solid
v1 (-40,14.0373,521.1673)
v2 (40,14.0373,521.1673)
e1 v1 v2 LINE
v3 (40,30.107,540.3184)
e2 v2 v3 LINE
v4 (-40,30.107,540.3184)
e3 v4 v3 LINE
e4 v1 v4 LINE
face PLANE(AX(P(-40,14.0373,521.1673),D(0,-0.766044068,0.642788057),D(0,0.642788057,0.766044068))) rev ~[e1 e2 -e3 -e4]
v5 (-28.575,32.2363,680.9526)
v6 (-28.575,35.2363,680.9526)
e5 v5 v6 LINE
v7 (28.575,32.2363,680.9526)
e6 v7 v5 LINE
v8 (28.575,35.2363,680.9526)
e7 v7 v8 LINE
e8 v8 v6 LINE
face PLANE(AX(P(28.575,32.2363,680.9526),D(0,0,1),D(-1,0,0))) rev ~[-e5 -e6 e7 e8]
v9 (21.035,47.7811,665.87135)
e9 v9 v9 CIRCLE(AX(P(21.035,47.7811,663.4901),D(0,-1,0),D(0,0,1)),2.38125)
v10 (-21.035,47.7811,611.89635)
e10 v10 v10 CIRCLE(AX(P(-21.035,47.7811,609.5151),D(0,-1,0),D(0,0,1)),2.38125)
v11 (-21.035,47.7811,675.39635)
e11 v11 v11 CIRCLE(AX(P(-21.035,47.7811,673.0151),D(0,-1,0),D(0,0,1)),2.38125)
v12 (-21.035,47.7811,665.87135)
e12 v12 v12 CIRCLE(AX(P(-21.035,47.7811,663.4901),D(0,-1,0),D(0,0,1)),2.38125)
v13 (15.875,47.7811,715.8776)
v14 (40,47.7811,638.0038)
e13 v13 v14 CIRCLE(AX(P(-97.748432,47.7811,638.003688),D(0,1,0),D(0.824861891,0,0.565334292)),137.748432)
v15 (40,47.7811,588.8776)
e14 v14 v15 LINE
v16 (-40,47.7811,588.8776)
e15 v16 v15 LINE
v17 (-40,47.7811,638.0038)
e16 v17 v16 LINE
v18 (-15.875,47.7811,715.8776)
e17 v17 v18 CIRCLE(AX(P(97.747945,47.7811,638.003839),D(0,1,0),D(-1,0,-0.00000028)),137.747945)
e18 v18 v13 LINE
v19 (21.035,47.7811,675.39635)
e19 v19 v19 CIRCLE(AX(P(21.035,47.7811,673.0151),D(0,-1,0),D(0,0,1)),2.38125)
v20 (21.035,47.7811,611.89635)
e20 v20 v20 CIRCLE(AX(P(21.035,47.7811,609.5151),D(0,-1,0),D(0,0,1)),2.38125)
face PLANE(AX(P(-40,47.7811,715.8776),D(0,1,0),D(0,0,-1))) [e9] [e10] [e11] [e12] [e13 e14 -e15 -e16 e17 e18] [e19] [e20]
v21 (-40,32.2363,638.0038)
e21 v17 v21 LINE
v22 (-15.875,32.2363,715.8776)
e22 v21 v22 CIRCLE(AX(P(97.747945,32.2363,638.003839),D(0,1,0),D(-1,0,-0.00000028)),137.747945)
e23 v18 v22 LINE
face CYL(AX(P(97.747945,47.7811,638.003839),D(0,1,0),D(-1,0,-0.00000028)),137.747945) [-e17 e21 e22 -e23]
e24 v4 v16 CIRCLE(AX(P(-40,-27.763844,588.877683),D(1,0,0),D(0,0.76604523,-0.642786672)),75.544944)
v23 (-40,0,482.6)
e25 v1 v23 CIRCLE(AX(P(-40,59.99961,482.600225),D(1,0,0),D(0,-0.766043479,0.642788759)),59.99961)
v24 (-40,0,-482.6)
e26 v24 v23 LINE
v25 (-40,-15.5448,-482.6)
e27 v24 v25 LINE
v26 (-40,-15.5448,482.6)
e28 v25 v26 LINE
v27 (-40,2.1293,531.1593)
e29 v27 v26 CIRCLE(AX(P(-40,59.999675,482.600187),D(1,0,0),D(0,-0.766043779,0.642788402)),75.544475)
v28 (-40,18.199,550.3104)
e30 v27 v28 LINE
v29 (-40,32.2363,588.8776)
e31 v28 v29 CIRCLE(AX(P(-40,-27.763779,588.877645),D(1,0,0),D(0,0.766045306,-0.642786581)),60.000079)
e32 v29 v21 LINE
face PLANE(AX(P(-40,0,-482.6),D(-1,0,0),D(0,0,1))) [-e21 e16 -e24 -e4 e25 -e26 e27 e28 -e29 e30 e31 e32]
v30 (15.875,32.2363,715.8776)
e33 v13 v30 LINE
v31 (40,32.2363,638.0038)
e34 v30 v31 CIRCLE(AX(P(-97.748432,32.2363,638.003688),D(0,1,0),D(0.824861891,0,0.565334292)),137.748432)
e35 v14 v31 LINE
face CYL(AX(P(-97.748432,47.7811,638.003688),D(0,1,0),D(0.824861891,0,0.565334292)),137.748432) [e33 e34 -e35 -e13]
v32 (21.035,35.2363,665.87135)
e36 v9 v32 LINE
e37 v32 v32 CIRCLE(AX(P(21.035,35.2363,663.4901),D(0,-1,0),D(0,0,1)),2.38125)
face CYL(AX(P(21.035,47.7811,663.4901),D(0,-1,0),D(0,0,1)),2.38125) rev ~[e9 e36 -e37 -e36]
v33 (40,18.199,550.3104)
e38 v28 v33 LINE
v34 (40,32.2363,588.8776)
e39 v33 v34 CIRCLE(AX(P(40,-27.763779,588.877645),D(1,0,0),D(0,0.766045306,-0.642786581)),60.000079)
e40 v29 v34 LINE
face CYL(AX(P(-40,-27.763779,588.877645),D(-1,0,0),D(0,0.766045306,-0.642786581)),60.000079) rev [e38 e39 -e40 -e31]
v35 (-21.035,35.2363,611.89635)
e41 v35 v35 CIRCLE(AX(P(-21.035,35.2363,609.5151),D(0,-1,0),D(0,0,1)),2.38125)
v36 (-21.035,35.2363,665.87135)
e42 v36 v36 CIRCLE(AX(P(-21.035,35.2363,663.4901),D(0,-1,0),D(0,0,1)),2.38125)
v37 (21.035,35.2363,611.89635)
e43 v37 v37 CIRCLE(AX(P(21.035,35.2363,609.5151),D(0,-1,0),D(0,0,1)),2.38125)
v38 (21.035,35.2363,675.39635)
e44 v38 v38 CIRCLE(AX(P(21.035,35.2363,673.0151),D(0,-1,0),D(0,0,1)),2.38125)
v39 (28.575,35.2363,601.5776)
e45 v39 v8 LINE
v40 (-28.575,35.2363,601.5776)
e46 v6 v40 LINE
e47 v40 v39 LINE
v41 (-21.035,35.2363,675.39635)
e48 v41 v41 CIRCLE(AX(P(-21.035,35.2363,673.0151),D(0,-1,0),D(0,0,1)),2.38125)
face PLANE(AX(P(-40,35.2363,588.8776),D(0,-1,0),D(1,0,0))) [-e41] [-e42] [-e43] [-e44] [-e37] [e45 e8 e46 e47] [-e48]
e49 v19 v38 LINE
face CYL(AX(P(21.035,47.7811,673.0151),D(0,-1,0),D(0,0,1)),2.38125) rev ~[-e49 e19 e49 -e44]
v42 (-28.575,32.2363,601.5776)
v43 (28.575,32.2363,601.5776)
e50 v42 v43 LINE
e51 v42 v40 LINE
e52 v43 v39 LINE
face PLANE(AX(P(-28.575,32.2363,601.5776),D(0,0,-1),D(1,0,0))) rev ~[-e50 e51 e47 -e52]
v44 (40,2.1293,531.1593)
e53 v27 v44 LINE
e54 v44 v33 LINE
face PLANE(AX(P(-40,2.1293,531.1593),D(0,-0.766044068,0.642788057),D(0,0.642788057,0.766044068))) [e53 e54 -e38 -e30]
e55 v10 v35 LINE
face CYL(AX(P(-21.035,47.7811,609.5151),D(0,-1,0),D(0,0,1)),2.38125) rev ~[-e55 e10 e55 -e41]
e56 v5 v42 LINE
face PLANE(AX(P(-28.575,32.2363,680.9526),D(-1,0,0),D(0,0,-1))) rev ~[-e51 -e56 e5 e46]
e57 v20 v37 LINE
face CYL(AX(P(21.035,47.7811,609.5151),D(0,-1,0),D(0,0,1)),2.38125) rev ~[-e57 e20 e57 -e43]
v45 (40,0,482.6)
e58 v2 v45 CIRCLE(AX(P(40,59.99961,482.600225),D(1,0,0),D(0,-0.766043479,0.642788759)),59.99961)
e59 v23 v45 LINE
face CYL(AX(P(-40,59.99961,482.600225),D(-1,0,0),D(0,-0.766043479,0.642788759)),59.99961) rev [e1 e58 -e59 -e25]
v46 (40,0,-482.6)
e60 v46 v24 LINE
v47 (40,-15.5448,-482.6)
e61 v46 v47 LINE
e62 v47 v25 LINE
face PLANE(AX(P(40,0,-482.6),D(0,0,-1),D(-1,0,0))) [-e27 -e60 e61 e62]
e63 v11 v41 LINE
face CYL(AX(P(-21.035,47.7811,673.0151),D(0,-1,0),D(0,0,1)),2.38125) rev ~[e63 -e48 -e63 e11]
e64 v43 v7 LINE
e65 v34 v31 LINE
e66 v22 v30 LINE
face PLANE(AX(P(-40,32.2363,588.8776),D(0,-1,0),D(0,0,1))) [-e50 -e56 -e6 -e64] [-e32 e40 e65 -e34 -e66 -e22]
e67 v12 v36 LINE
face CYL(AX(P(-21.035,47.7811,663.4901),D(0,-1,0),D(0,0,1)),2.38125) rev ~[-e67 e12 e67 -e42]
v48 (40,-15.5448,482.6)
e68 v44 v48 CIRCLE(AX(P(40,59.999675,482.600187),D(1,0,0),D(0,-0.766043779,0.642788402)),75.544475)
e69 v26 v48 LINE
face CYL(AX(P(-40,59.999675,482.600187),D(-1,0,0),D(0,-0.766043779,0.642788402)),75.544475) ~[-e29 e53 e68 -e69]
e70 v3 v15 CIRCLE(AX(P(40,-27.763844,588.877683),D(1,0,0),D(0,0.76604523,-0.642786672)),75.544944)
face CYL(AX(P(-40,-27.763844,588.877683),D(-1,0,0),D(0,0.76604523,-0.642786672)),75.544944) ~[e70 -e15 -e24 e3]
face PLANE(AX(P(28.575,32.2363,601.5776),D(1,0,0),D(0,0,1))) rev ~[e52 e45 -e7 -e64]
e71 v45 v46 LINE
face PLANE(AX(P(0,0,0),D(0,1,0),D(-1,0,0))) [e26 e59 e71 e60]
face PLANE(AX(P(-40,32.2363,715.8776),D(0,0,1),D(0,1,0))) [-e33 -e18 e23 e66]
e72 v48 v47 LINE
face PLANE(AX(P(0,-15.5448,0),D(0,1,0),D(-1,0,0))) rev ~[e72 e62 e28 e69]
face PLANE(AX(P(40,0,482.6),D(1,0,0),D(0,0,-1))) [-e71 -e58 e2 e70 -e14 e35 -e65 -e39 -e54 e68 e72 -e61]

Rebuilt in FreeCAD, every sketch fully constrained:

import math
import FreeCAD as App
import Part
import Sketcher

V = App.Vector
Q = App.Units.Quantity

doc = App.newDocument("Part")
body = doc.addObject("PartDesign::Body", "Body")

sketch1 = body.newObject("Sketcher::SketchObject", "Sketch")
sketch1.AttachmentSupport = (doc.getObject("XZ_Plane"), [""])
sketch1.MapMode = "FlatFace"
sketch1.addGeometry(Part.LineSegment(V(-40, 482.6, 0), V(40, 482.6, 0)), False)
sketch1.addGeometry(Part.LineSegment(V(40, 482.6, 0), V(40, -482.6, 0)), False)
sketch1.addGeometry(Part.LineSegment(V(40, -482.6, 0), V(-40, -482.6, 0)), False)
sketch1.addGeometry(Part.LineSegment(V(-40, -482.6, 0), V(-40, 482.6, 0)), False)
sketch1.addConstraint(Sketcher.Constraint("Coincident", 0, 2, 1, 1))
sketch1.addConstraint(Sketcher.Constraint("Coincident", 1, 2, 2, 1))
sketch1.addConstraint(Sketcher.Constraint("Coincident", 2, 2, 3, 1))
sketch1.addConstraint(Sketcher.Constraint("Coincident", 3, 2, 0, 1))
sketch1.addConstraint(Sketcher.Constraint("Horizontal", 0))
sketch1.addConstraint(Sketcher.Constraint("Vertical", 1))
sketch1.addConstraint(Sketcher.Constraint("Horizontal", 2))
sketch1.addConstraint(Sketcher.Constraint("Vertical", 3))
sketch1.addConstraint(Sketcher.Constraint("Symmetric", 0, 2, 2, 2, -1, 1))
sketch1.addConstraint(Sketcher.Constraint("DistanceY", 1, 2, 1, 1, Q("38 in")))
sketch1.addConstraint(Sketcher.Constraint("DistanceX", 0, 1, 0, 2, Q("3.1496 in")))
pad1 = body.newObject("PartDesign::Pad", "Pad")
pad1.Profile = sketch1
pad1.Length = Q("0.612 in")

sketch2 = body.newObject("Sketcher::SketchObject", "Sketch001")
sketch2.AttachmentSupport = (doc.getObject("YZ_Plane"), [""])
sketch2.MapMode = "FlatFace"
sketch2.AttachmentOffset = App.Placement(V(0, 0, -1.5748031 * 25.4), App.Rotation())
sketch2.addGeometry(Part.LineSegment(V(-15.5448, 482.6, 0), V(0, 482.6, 0)), False)
sketch2.addGeometry(Part.ArcOfCircle(Part.Circle(V(60, 482.6, 0), V(0, 0, 1), 60.000054), math.radians(139.999989), math.radians(180)), False)
sketch2.addGeometry(Part.LineSegment(V(14.0373, 521.1673, 0), V(30.107, 540.3184, 0)), False)
sketch2.addGeometry(Part.ArcOfCircle(Part.Circle(V(-27.7637, 588.8776, 0), V(0, 0, 1), 75.54478), math.radians(-39.999952), math.radians(0)), False)
sketch2.addGeometry(Part.LineSegment(V(47.7811, 588.8776, 0), V(47.7811, 715.8776, 0)), False)
sketch2.addGeometry(Part.LineSegment(V(47.7811, 715.8776, 0), V(32.2363, 715.8776, 0)), False)
sketch2.addGeometry(Part.LineSegment(V(32.2363, 715.8776, 0), V(32.2363, 588.8776, 0)), False)
sketch2.addGeometry(Part.ArcOfCircle(Part.Circle(V(-27.7637, 588.8776, 0), V(0, 0, 1), 59.999989), math.radians(-39.999938), math.radians(0)), False)
sketch2.addGeometry(Part.LineSegment(V(18.199, 550.3104, 0), V(2.1293, 531.1593, 0)), False)
sketch2.addGeometry(Part.ArcOfCircle(Part.Circle(V(60, 482.6, 0), V(0, 0, 1), 75.544845), math.radians(139.99999), math.radians(180)), False)
sketch2.addConstraint(Sketcher.Constraint("Coincident", 0, 2, 1, 2))
sketch2.addConstraint(Sketcher.Constraint("Tangent", 1, 1, 2, 1))
sketch2.addConstraint(Sketcher.Constraint("Tangent", 2, 2, 3, 1))
sketch2.addConstraint(Sketcher.Constraint("Tangent", 3, 2, 4, 1))
sketch2.addConstraint(Sketcher.Constraint("Coincident", 4, 2, 5, 1))
sketch2.addConstraint(Sketcher.Constraint("Coincident", 5, 2, 6, 1))
sketch2.addConstraint(Sketcher.Constraint("Tangent", 6, 2, 7, 2))
sketch2.addConstraint(Sketcher.Constraint("Tangent", 7, 1, 8, 1))
sketch2.addConstraint(Sketcher.Constraint("Tangent", 8, 2, 9, 1))
sketch2.addConstraint(Sketcher.Constraint("Coincident", 9, 2, 0, 1))
sketch2.addConstraint(Sketcher.Constraint("Horizontal", 0))
sketch2.addConstraint(Sketcher.Constraint("Vertical", 4))
sketch2.addConstraint(Sketcher.Constraint("Horizontal", 5))
sketch2.addConstraint(Sketcher.Constraint("Vertical", 6))
sketch2.addConstraint(Sketcher.Constraint("Coincident", 7, 3, 3, 3))
sketch2.addConstraint(Sketcher.Constraint("Coincident", 9, 3, 1, 3))
sketch2.addConstraint(Sketcher.Constraint("Equal", 1, 7))
sketch2.addConstraint(Sketcher.Constraint("Equal", 3, 9))
sketch2.addConstraint(Sketcher.Constraint("PointOnObject", 0, 2, -2))
sketch2.addConstraint(Sketcher.Constraint("Horizontal", 9, 3, 0, 2))
sketch2.addConstraint(Sketcher.Constraint("DistanceY", 4, 1, 4, 2, Q("5 in")))
sketch2.addConstraint(Sketcher.Constraint("Radius", 1, Q("2.3622 in")))
sketch2.addConstraint(Sketcher.Constraint("DistanceY", -1, 1, 1, 3, Q("19 in")))
sketch2.addConstraint(Sketcher.Constraint("Angle", 2, Q("50 deg")))
sketch2.addConstraint(Sketcher.Constraint("Radius", 3, Q("2.9742 in")))
sketch2.addConstraint(Sketcher.Constraint("Distance", 2, Q("25 mm")))
pad2 = body.newObject("PartDesign::Pad", "Pad001")
pad2.Profile = sketch2
pad2.Length = Q("3.1496063 in")

sketch3 = body.newObject("Sketcher::SketchObject", "Sketch002")
sketch3.AttachmentSupport = (doc.getObject("XZ_Plane"), [""])
sketch3.MapMode = "FlatFace"
sketch3.AttachmentOffset = App.Placement(V(0, 0, -47.7811), App.Rotation())
sketch3.addGeometry(Part.ArcOfCircle(Part.Circle(V(-97.7482, 638.0038, 0), V(0, 0, 1), 137.748177), math.radians(0), math.radians(34.425524)), False)
sketch3.addGeometry(Part.LineSegment(V(15.875, 715.8776, 0), V(40, 715.8776, 0)), False)
sketch3.addGeometry(Part.LineSegment(V(40, 715.8776, 0), V(40, 638.0038, 0)), False)
sketch3.addGeometry(Part.LineSegment(V(-40, 638.0038, 0), V(-40, 715.8776, 0)), False)
sketch3.addGeometry(Part.LineSegment(V(-40, 715.8776, 0), V(-15.875, 715.8776, 0)), False)
sketch3.addGeometry(Part.ArcOfCircle(Part.Circle(V(97.7482, 638.0038, 0), V(0, 0, 1), 137.7482), math.radians(145.574476), math.radians(180)), False)
sketch3.addConstraint(Sketcher.Constraint("Coincident", 0, 2, 1, 1))
sketch3.addConstraint(Sketcher.Constraint("Coincident", 1, 2, 2, 1))
sketch3.addConstraint(Sketcher.Constraint("Tangent", 2, 2, 0, 1))
sketch3.addConstraint(Sketcher.Constraint("Coincident", 3, 2, 4, 1))
sketch3.addConstraint(Sketcher.Constraint("Coincident", 4, 2, 5, 1))
sketch3.addConstraint(Sketcher.Constraint("Tangent", 5, 2, 3, 1))
sketch3.addConstraint(Sketcher.Constraint("Horizontal", 1))
sketch3.addConstraint(Sketcher.Constraint("Vertical", 2))
sketch3.addConstraint(Sketcher.Constraint("Vertical", 3))
sketch3.addConstraint(Sketcher.Constraint("Horizontal", 4))
sketch3.addConstraint(Sketcher.Constraint("Equal", 0, 5))
sketch3.addConstraint(Sketcher.Constraint("Symmetric", 0, 3, 5, 3, -2))
sketch3.addConstraint(Sketcher.Constraint("Horizontal", 1, 2, 3, 2))
sketch3.addConstraint(Sketcher.Constraint("DistanceX", 4, 2, 0, 2, Q("1.25 in")))
sketch3.addConstraint(Sketcher.Constraint("Radius", 0, Q("137.7482 mm")))
sketch3.addConstraint(Sketcher.Constraint("DistanceX", 1, 1, 1, 2, Q("0.9498 in")))
sketch3.addConstraint(Sketcher.Constraint("DistanceY", -1, 1, 0, 3, Q("638.0038 mm")))
pocket1 = body.newObject("PartDesign::Pocket", "Pocket")
pocket1.Profile = sketch3
pocket1.Type = "ThroughAll"
pocket1.Reversed = True

sketch4 = body.newObject("Sketcher::SketchObject", "Sketch003")
sketch4.AttachmentSupport = (doc.getObject("XZ_Plane"), [""])
sketch4.MapMode = "FlatFace"
sketch4.AttachmentOffset = App.Placement(V(0, 0, -47.7811), App.Rotation())
sketch4.addGeometry(Part.Circle(V(-21.035, 673.0151, 0), V(0, 0, 1), 2.38125), False)
sketch4.addGeometry(Part.Circle(V(-21.035, 663.4901, 0), V(0, 0, 1), 2.38125), False)
sketch4.addGeometry(Part.Circle(V(21.035, 673.0151, 0), V(0, 0, 1), 2.38125), False)
sketch4.addGeometry(Part.Circle(V(21.035, 663.4901, 0), V(0, 0, 1), 2.38125), False)
sketch4.addGeometry(Part.Circle(V(21.035, 609.5151, 0), V(0, 0, 1), 2.38125), False)
sketch4.addGeometry(Part.Circle(V(-21.035, 609.5151, 0), V(0, 0, 1), 2.38125), False)
sketch4.addConstraint(Sketcher.Constraint("Equal", 0, 1))
sketch4.addConstraint(Sketcher.Constraint("Equal", 1, 2))
sketch4.addConstraint(Sketcher.Constraint("Equal", 2, 3))
sketch4.addConstraint(Sketcher.Constraint("Equal", 3, 4))
sketch4.addConstraint(Sketcher.Constraint("Equal", 4, 5))
sketch4.addConstraint(Sketcher.Constraint("Symmetric", 0, 3, 2, 3, -2))
sketch4.addConstraint(Sketcher.Constraint("Symmetric", 1, 3, 3, 3, -2))
sketch4.addConstraint(Sketcher.Constraint("Symmetric", 4, 3, 5, 3, -2))
sketch4.addConstraint(Sketcher.Constraint("Vertical", 0, 3, 1, 3))
sketch4.addConstraint(Sketcher.Constraint("Vertical", 3, 3, 4, 3))
sketch4.addConstraint(Sketcher.Constraint("Diameter", 0, Q("0.1875 in")))
sketch4.addConstraint(Sketcher.Constraint("DistanceY", 4, 3, 2, 3, Q("2.5 in")))
sketch4.addConstraint(Sketcher.Constraint("DistanceY", 1, 3, 0, 3, Q("0.375 in")))
sketch4.addConstraint(Sketcher.Constraint("DistanceX", 0, 3, 2, 3, Q("1.6563 in")))
sketch4.addConstraint(Sketcher.Constraint("DistanceY", -1, 1, 0, 3, Q("673.015 mm")))
doc.recompute()
hole = body.newObject("PartDesign::Hole", "Hole")
hole.Profile = sketch4
hole.ThreadType = "None"
hole.Diameter = Q("0.1875 in")
hole.DepthType = "ThroughAll"
hole.Reversed = True

sketch5 = body.newObject("Sketcher::SketchObject", "Sketch004")
sketch5.AttachmentSupport = (doc.getObject("XZ_Plane"), [""])
sketch5.MapMode = "FlatFace"
sketch5.AttachmentOffset = App.Placement(V(0, 0, -32.2363), App.Rotation())
sketch5.addGeometry(Part.LineSegment(V(-28.575, 680.9526, 0), V(-28.575, 601.5776, 0)), False)
sketch5.addGeometry(Part.LineSegment(V(-28.575, 601.5776, 0), V(28.575, 601.5776, 0)), False)
sketch5.addGeometry(Part.LineSegment(V(28.575, 601.5776, 0), V(28.575, 680.9526, 0)), False)
sketch5.addGeometry(Part.LineSegment(V(28.575, 680.9526, 0), V(-28.575, 680.9526, 0)), False)
sketch5.addConstraint(Sketcher.Constraint("Coincident", 0, 2, 1, 1))
sketch5.addConstraint(Sketcher.Constraint("Coincident", 1, 2, 2, 1))
sketch5.addConstraint(Sketcher.Constraint("Coincident", 2, 2, 3, 1))
sketch5.addConstraint(Sketcher.Constraint("Coincident", 3, 2, 0, 1))
sketch5.addConstraint(Sketcher.Constraint("Vertical", 0))
sketch5.addConstraint(Sketcher.Constraint("Horizontal", 1))
sketch5.addConstraint(Sketcher.Constraint("Vertical", 2))
sketch5.addConstraint(Sketcher.Constraint("Horizontal", 3))
sketch5.addConstraint(Sketcher.Constraint("DistanceX", 1, 1, 1, 2, Q("2.25 in")))
sketch5.addConstraint(Sketcher.Constraint("DistanceY", 0, 2, 0, 1, Q("3.125 in")))
sketch5.addConstraint(Sketcher.Constraint("DistanceX", 0, 2, -1, 1, Q("1.125 in")))
sketch5.addConstraint(Sketcher.Constraint("DistanceY", -1, 1, 0, 2, Q("601.5776 mm")))
pocket2 = body.newObject("PartDesign::Pocket", "Pocket001")
pocket2.Profile = sketch5
pocket2.Length = Q("0.1181102 in")

doc.recompute()
